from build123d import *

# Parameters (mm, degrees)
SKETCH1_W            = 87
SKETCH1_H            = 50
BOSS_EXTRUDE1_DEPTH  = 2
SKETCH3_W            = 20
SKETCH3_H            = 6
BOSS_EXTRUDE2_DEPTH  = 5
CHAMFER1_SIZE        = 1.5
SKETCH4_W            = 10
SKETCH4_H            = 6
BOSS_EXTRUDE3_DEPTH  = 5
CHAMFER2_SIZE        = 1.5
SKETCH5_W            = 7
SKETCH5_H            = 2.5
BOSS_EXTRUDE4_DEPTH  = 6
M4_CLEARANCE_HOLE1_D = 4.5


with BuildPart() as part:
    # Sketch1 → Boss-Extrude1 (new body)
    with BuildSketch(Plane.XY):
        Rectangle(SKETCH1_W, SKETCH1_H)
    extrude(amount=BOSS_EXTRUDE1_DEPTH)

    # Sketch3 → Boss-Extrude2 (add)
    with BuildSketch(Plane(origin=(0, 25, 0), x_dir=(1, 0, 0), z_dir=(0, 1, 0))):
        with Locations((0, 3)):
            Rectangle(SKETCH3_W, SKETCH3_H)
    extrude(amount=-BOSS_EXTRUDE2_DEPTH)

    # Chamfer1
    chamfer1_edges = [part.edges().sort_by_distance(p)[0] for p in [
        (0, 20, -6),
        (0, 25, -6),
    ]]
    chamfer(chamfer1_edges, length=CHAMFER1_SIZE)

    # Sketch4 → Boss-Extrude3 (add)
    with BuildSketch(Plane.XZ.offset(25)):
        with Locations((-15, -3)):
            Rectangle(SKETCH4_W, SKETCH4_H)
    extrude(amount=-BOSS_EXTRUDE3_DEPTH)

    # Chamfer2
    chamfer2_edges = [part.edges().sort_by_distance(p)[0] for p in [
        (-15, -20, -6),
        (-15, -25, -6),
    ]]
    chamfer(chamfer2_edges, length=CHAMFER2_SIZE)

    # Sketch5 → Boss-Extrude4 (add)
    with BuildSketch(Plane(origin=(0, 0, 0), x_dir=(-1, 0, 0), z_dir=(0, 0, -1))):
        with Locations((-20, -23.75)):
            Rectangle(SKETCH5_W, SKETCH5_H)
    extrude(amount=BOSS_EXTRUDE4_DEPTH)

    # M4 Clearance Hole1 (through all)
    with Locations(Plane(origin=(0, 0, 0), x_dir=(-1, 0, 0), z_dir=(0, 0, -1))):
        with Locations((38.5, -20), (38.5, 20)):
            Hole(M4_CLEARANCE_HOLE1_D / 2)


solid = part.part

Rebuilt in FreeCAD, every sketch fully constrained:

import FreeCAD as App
import Part
import Sketcher
from FreeCAD import Vector


def edges_at(feature, points):
    """Names of the edges that pass closest to the given points."""
    edges = feature.Shape.Edges
    near = lambda p: min(range(len(edges)), key=lambda i: edges[i].distToShape(Part.Vertex(*p))[0])
    return sorted({f"Edge{near(p) + 1}" for p in points})

doc = App.newDocument("Part")
body = doc.addObject("PartDesign::Body", "Body")

# Sketch on XY plane
sketch1 = body.newObject("Sketcher::SketchObject", "Sketch")
sketch1.AttachmentSupport = (doc.getObject("XY_Plane"), [""])
sketch1.MapMode = "FlatFace"
sketch1.addGeometry([
    Part.LineSegment(Vector(-43.5, 25, 0), Vector(-43.5, -25, 0)),
    Part.LineSegment(Vector(-43.5, -25, 0), Vector(43.5, -25, 0)),
    Part.LineSegment(Vector(43.5, -25, 0), Vector(43.5, 25, 0)),
    Part.LineSegment(Vector(43.5, 25, 0), Vector(-43.5, 25, 0)),
], False)
sketch1.addConstraint([
    Sketcher.Constraint("Coincident", 0, 2, 1, 1),
    Sketcher.Constraint("Coincident", 1, 2, 2, 1),
    Sketcher.Constraint("Coincident", 2, 2, 3, 1),
    Sketcher.Constraint("Coincident", 3, 2, 0, 1),
    Sketcher.Constraint("Vertical", 0),
    Sketcher.Constraint("Horizontal", 1),
    Sketcher.Constraint("Vertical", 2),
    Sketcher.Constraint("Horizontal", 3),
    Sketcher.Constraint("Symmetric", 0, 2, 2, 2, -1, 1),
    Sketcher.Constraint("DistanceX", 1, 1, 1, 2, 87.0),
    Sketcher.Constraint("DistanceY", 0, 2, 0, 1, 50.0),
])
pad1 = body.newObject("PartDesign::Pad", "Pad")
pad1.Profile = sketch1
pad1.Length = 2

# Sketch on XZ plane
sketch2 = body.newObject("Sketcher::SketchObject", "Sketch001")
sketch2.AttachmentSupport = (doc.getObject("XZ_Plane"), [""])
sketch2.MapMode = "FlatFace"
sketch2.AttachmentOffset = App.Placement(Vector(0, 0, -25), App.Rotation())
sketch2.addGeometry([
    Part.LineSegment(Vector(-10, -6, 0), Vector(-10, 0, 0)),
    Part.LineSegment(Vector(-10, 0, 0), Vector(10, 0, 0)),
    Part.LineSegment(Vector(10, 0, 0), Vector(10, -6, 0)),
    Part.LineSegment(Vector(10, -6, 0), Vector(-10, -6, 0)),
], False)
sketch2.addConstraint([
    Sketcher.Constraint("Coincident", 0, 2, 1, 1),
    Sketcher.Constraint("Coincident", 1, 2, 2, 1),
    Sketcher.Constraint("Coincident", 2, 2, 3, 1),
    Sketcher.Constraint("Coincident", 3, 2, 0, 1),
    Sketcher.Constraint("Vertical", 0),
    Sketcher.Constraint("Horizontal", 1),
    Sketcher.Constraint("Vertical", 2),
    Sketcher.Constraint("Horizontal", 3),
    Sketcher.Constraint("Symmetric", 0, 2, 1, 2, -1, 1),
    Sketcher.Constraint("DistanceX", 1, 1, 1, 2, 20.0),
    Sketcher.Constraint("DistanceY", 0, 1, 0, 2, 6.0),
])
pad2 = body.newObject("PartDesign::Pad", "Pad001")
pad2.Profile = sketch2
pad2.Length = 5
doc.recompute()

chamfer = body.newObject("PartDesign::Chamfer", "Chamfer")
chamfer.Base = (pad2, edges_at(pad2, [(0, 20, -6), (0, 25, -6)]))
chamfer.Size = 1.5

# Sketch on XZ plane
sketch3 = body.newObject("Sketcher::SketchObject", "Sketch002")
sketch3.AttachmentSupport = (doc.getObject("XZ_Plane"), [""])
sketch3.MapMode = "FlatFace"
sketch3.AttachmentOffset = App.Placement(Vector(0, 0, 25), App.Rotation())
sketch3.addGeometry([
    Part.LineSegment(Vector(-20, 0, 0), Vector(-20, -6, 0)),
    Part.LineSegment(Vector(-20, -6, 0), Vector(-10, -6, 0)),
    Part.LineSegment(Vector(-10, -6, 0), Vector(-10, 0, 0)),
    Part.LineSegment(Vector(-10, 0, 0), Vector(-20, 0, 0)),
], False)
sketch3.addConstraint([
    Sketcher.Constraint("Coincident", 0, 2, 1, 1),
    Sketcher.Constraint("Coincident", 1, 2, 2, 1),
    Sketcher.Constraint("Coincident", 2, 2, 3, 1),
    Sketcher.Constraint("Coincident", 3, 2, 0, 1),
    Sketcher.Constraint("Vertical", 0),
    Sketcher.Constraint("Horizontal", 1),
    Sketcher.Constraint("Vertical", 2),
    Sketcher.Constraint("Horizontal", 3),
    Sketcher.Constraint("PointOnObject", 2, 2, -1),
    Sketcher.Constraint("DistanceX", 1, 1, 1, 2, 10.0),
    Sketcher.Constraint("DistanceY", 0, 2, 0, 1, 6.0),
    Sketcher.Constraint("DistanceX", 0, 2, -1, 1, 20.0),
])
pad3 = body.newObject("PartDesign::Pad", "Pad002")
pad3.Profile = sketch3
pad3.Length = 5
pad3.Reversed = True
doc.recompute()

chamfer2 = body.newObject("PartDesign::Chamfer", "Chamfer001")
chamfer2.Base = (pad3, edges_at(pad3, [(-15, -20, -6), (-15, -25, -6)]))
chamfer2.Size = 1.5

# Sketch on XY plane
sketch4 = body.newObject("Sketcher::SketchObject", "Sketch003")
sketch4.AttachmentSupport = (doc.getObject("XY_Plane"), [""])
sketch4.MapMode = "FlatFace"
sketch4.addGeometry([
    Part.LineSegment(Vector(23.5, -22.5, 0), Vector(23.5, -25, 0)),
    Part.LineSegment(Vector(23.5, -25, 0), Vector(16.5, -25, 0)),
    Part.LineSegment(Vector(16.5, -25, 0), Vector(16.5, -22.5, 0)),
    Part.LineSegment(Vector(16.5, -22.5, 0), Vector(23.5, -22.5, 0)),
], False)
sketch4.addConstraint([
    Sketcher.Constraint("Coincident", 0, 2, 1, 1),
    Sketcher.Constraint("Coincident", 1, 2, 2, 1),
    Sketcher.Constraint("Coincident", 2, 2, 3, 1),
    Sketcher.Constraint("Coincident", 3, 2, 0, 1),
    Sketcher.Constraint("Vertical", 0),
    Sketcher.Constraint("Horizontal", 1),
    Sketcher.Constraint("Vertical", 2),
    Sketcher.Constraint("Horizontal", 3),
    Sketcher.Constraint("DistanceX", 1, 2, 1, 1, 7.0),
    Sketcher.Constraint("DistanceY", 0, 2, 0, 1, 2.5),
    Sketcher.Constraint("DistanceY", 0, 2, -1, 1, 25.0),
    Sketcher.Constraint("DistanceX", -1, 1, 0, 2, 23.5),
])
pad4 = body.newObject("PartDesign::Pad", "Pad003")
pad4.Profile = sketch4
pad4.Length = 6
pad4.Reversed = True

# Sketch on XY plane
sketch5 = body.newObject("Sketcher::SketchObject", "Sketch004")
sketch5.AttachmentSupport = (doc.getObject("XY_Plane"), [""])
sketch5.MapMode = "FlatFace"
sketch5.addGeometry([
    Part.Circle(Vector(-38.5, -20, 0), Vector(0, 0, 1), 2.25),
    Part.Circle(Vector(-38.5, 20, 0), Vector(0, 0, 1), 2.25),
], False)
sketch5.addConstraint([
    Sketcher.Constraint("Equal", 0, 1),
    Sketcher.Constraint("Symmetric", 0, 3, 1, 3, -1),
    Sketcher.Constraint("Diameter", 0, 4.5),
    Sketcher.Constraint("DistanceY", 0, 3, -1, 1, 20.0),
    Sketcher.Constraint("DistanceX", 0, 3, -1, 1, 38.5),
])
doc.recompute()
hole = body.newObject("PartDesign::Hole", "Hole")
hole.Profile = sketch5
hole.ThreadType = "None"
hole.Diameter = 4.5
hole.DepthType = "ThroughAll"
hole.Reversed = True

doc.recompute()
